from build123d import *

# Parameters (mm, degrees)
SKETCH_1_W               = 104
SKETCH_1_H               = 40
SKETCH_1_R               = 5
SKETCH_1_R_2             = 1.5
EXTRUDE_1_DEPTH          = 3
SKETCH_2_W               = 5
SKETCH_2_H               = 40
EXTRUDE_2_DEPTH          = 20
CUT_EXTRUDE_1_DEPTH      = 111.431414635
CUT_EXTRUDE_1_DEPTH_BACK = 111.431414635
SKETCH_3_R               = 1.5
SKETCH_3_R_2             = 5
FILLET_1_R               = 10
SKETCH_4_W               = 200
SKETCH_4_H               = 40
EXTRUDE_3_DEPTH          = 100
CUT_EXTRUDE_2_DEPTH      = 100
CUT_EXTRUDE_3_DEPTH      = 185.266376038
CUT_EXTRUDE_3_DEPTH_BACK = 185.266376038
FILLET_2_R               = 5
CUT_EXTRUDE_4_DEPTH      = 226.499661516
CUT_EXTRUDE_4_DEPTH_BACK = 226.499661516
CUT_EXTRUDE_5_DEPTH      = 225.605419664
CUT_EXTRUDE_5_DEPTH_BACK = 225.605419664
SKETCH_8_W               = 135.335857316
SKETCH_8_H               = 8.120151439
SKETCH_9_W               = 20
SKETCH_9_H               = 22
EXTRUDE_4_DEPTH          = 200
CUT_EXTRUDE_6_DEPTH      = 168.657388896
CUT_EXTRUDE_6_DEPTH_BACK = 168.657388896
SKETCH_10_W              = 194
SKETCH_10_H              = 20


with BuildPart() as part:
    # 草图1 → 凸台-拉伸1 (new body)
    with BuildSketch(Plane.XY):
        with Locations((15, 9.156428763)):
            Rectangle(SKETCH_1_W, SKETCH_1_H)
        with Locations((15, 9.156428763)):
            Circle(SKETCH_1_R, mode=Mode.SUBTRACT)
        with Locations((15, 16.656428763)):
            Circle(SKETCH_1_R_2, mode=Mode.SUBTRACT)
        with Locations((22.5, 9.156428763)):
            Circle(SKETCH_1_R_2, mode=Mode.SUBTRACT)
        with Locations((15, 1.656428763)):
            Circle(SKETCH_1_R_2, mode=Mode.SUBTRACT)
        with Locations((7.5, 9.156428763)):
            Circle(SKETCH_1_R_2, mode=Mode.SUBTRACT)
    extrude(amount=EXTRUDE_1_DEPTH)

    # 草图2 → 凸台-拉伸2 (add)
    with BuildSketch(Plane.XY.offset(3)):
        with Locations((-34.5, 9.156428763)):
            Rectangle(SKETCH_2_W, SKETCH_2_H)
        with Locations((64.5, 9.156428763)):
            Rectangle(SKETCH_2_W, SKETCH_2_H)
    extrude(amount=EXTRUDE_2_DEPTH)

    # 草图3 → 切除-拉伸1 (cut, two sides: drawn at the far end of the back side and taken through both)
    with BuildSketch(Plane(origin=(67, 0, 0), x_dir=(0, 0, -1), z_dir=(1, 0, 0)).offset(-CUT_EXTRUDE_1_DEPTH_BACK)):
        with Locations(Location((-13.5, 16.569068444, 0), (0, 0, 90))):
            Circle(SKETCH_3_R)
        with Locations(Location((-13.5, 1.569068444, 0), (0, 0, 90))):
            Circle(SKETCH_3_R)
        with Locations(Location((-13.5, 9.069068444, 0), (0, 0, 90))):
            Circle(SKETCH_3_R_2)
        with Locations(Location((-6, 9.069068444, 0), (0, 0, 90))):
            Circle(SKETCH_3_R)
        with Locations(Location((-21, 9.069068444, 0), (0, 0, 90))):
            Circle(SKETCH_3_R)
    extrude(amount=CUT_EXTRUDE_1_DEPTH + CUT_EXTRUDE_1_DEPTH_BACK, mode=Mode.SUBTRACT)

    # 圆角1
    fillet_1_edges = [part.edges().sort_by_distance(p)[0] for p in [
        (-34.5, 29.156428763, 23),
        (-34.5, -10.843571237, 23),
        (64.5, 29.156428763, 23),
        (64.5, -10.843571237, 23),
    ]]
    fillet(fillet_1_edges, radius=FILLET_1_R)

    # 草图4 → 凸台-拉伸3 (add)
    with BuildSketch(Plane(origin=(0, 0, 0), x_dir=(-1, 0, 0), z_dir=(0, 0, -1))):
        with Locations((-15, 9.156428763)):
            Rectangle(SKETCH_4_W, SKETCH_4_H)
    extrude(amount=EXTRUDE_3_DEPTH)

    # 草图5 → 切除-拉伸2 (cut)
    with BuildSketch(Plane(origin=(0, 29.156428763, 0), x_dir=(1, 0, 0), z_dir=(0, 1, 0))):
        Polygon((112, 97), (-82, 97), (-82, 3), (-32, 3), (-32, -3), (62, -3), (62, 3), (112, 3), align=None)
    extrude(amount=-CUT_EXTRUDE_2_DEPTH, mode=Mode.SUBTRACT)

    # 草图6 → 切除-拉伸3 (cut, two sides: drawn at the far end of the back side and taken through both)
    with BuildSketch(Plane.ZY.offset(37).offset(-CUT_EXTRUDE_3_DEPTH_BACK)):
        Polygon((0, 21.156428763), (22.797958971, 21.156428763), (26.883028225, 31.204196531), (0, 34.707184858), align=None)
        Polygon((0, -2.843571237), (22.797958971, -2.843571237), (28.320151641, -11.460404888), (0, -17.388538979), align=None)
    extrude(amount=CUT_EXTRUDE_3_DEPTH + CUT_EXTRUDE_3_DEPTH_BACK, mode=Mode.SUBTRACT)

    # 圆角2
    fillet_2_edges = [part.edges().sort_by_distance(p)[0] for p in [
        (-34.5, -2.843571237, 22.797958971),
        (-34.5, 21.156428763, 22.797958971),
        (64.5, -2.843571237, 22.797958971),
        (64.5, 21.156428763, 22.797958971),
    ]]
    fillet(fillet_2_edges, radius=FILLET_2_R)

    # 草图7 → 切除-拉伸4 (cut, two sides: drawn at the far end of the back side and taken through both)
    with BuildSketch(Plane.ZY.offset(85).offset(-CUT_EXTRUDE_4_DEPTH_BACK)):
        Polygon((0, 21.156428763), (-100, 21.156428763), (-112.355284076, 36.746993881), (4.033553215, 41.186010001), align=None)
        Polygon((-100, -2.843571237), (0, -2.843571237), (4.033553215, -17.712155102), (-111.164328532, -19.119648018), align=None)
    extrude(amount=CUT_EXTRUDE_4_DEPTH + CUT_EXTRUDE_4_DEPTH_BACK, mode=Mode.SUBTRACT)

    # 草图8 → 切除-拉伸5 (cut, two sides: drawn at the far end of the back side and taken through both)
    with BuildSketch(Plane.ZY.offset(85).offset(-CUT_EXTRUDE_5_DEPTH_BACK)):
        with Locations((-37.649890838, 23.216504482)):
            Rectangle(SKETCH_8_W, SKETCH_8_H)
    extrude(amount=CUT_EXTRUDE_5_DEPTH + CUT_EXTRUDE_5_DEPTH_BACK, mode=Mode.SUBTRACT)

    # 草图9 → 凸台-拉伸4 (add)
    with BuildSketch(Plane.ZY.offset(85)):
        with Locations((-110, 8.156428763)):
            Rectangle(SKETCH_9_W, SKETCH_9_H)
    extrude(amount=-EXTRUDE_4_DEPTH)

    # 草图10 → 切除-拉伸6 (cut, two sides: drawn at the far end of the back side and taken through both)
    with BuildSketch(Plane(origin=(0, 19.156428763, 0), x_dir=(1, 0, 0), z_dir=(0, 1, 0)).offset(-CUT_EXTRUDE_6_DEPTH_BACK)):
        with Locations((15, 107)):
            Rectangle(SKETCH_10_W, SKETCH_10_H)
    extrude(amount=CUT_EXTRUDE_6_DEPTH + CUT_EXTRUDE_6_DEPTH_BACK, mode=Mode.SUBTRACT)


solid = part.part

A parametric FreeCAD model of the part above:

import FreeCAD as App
import Part
import Sketcher
Q = App.Units.Quantity


def edges_at(feature, points):
    """Names of the edges that pass closest to the given points."""
    edges = feature.Shape.Edges
    near = lambda p: min(range(len(edges)), key=lambda i: edges[i].distToShape(Part.Vertex(*p))[0])
    return sorted({f"Edge{near(p) + 1}" for p in points})


def add_polygon(sketch, points):
    """Adds a closed chain of lines whose ends are joined by coincident constraints."""
    first, n = sketch.GeometryCount, len(points)
    for a, b in zip(points, points[1:] + points[:1]):
        sketch.addGeometry(Part.LineSegment(App.Vector(*a, 0), App.Vector(*b, 0)), False)
    for i in range(n):
        sketch.addConstraint(Sketcher.Constraint("Coincident", first + i, 2, first + (i + 1) % n, 1))

doc = App.newDocument("Part")
body = doc.addObject("PartDesign::Body", "Body")

# Sketch on XY plane
sketch1 = body.newObject("Sketcher::SketchObject", "Sketch")
sketch1.AttachmentSupport = (doc.getObject("XY_Plane"), [""])
sketch1.MapMode = "FlatFace"
add_polygon(sketch1, [(-37, 29.156429), (-37, -10.843571), (67, -10.843571), (67, 29.156429)])  # lines 0-3
sketch1.addGeometry(Part.Circle(App.Vector(15, 1.656429, 0), App.Vector(0, 0, 1), 1.5), False)  # 4
sketch1.addGeometry(Part.Circle(App.Vector(7.5, 9.156429, 0), App.Vector(0, 0, 1), 1.5), False)  # 5
sketch1.addGeometry(Part.Circle(App.Vector(15, 9.156429, 0), App.Vector(0, 0, 1), 5), False)  # 6
sketch1.addGeometry(Part.Circle(App.Vector(22.5, 9.156429, 0), App.Vector(0, 0, 1), 1.5), False)  # 7
sketch1.addGeometry(Part.Circle(App.Vector(15, 16.656429, 0), App.Vector(0, 0, 1), 1.5), False)  # 8
sketch1.addConstraint(Sketcher.Constraint("Vertical", 0))
sketch1.addConstraint(Sketcher.Constraint("Horizontal", 1))
sketch1.addConstraint(Sketcher.Constraint("Vertical", 2))
sketch1.addConstraint(Sketcher.Constraint("Horizontal", 3))
sketch1.addConstraint(Sketcher.Constraint("Equal", 4, 5))
sketch1.addConstraint(Sketcher.Constraint("Equal", 5, 7))
sketch1.addConstraint(Sketcher.Constraint("Equal", 7, 8))
sketch1.addConstraint(Sketcher.Constraint("Horizontal", 5, 3, 6, 3))
sketch1.addConstraint(Sketcher.Constraint("Horizontal", 6, 3, 7, 3))
sketch1.addConstraint(Sketcher.Constraint("Vertical", 4, 3, 6, 3))
sketch1.addConstraint(Sketcher.Constraint("Vertical", 6, 3, 8, 3))
sketch1.addConstraint(Sketcher.Constraint("Diameter", 4, Q("3 mm")))
sketch1.addConstraint(Sketcher.Constraint("Diameter", 6, Q("10 mm")))
sketch1.addConstraint(Sketcher.Constraint("DistanceX", 1, 1, 1, 2, Q("104 mm")))
sketch1.addConstraint(Sketcher.Constraint("DistanceY", 0, 2, 0, 1, Q("40 mm")))
sketch1.addConstraint(Sketcher.Constraint("DistanceX", -1, 1, 4, 3, Q("15 mm")))
sketch1.addConstraint(Sketcher.Constraint("DistanceX", 0, 2, -1, 1, Q("37 mm")))
sketch1.addConstraint(Sketcher.Constraint("DistanceX", 5, 3, 7, 3, Q("15 mm")))
sketch1.addConstraint(Sketcher.Constraint("DistanceY", 4, 3, 8, 3, Q("15 mm")))
sketch1.addConstraint(Sketcher.Constraint("DistanceY", 0, 2, 5, 3, Q("20 mm")))
sketch1.addConstraint(Sketcher.Constraint("DistanceX", -1, 1, 5, 3, Q("7.5 mm")))
sketch1.addConstraint(Sketcher.Constraint("DistanceY", 4, 3, 5, 3, Q("7.5 mm")))
sketch1.addConstraint(Sketcher.Constraint("DistanceY", -1, 1, 4, 3, Q("1.656429 mm")))
pad1 = body.newObject("PartDesign::Pad", "Pad")
pad1.Profile = sketch1
pad1.Length = 3

# Sketch on XY plane
sketch2 = body.newObject("Sketcher::SketchObject", "Sketch001")
sketch2.AttachmentSupport = (doc.getObject("XY_Plane"), [""])
sketch2.MapMode = "FlatFace"
sketch2.AttachmentOffset = App.Placement(App.Vector(0, 0, 3), App.Rotation())
add_polygon(sketch2, [(-37, 29.156429), (-37, -10.843571), (-32, -10.843571), (-32, 29.156429)])  # lines 0-3
add_polygon(sketch2, [(62, 29.156429), (62, -10.843571), (67, -10.843571), (67, 29.156429)])  # lines 4-7
sketch2.addConstraint(Sketcher.Constraint("Vertical", 0))
sketch2.addConstraint(Sketcher.Constraint("Horizontal", 1))
sketch2.addConstraint(Sketcher.Constraint("Vertical", 2))
sketch2.addConstraint(Sketcher.Constraint("Horizontal", 3))
sketch2.addConstraint(Sketcher.Constraint("Vertical", 4))
sketch2.addConstraint(Sketcher.Constraint("Horizontal", 5))
sketch2.addConstraint(Sketcher.Constraint("Vertical", 6))
sketch2.addConstraint(Sketcher.Constraint("Horizontal", 7))
sketch2.addConstraint(Sketcher.Constraint("Horizontal", 1, 2, 4, 2))
sketch2.addConstraint(Sketcher.Constraint("Horizontal", 3, 2, 6, 2))
sketch2.addConstraint(Sketcher.Constraint("Equal", 3, 5))
sketch2.addConstraint(Sketcher.Constraint("DistanceX", 1, 1, 1, 2, Q("5 mm")))
sketch2.addConstraint(Sketcher.Constraint("DistanceY", 0, 2, 0, 1, Q("40 mm")))
sketch2.addConstraint(Sketcher.Constraint("DistanceX", 0, 2, -1, 1, Q("37 mm")))
sketch2.addConstraint(Sketcher.Constraint("DistanceX", -1, 1, 4, 2, Q("62 mm")))
sketch2.addConstraint(Sketcher.Constraint("DistanceY", 0, 2, -1, 1, Q("10.843571 mm")))
pad2 = body.newObject("PartDesign::Pad", "Pad001")
pad2.Profile = sketch2
pad2.Length = 20

# Sketch on YZ plane
sketch3 = body.newObject("Sketcher::SketchObject", "Sketch002")
sketch3.AttachmentSupport = (doc.getObject("YZ_Plane"), [""])
sketch3.MapMode = "FlatFace"
sketch3.AttachmentOffset = App.Placement(App.Vector(0, 0, 67), App.Rotation())
sketch3.addGeometry(Part.Circle(App.Vector(16.569068, 13.5, 0), App.Vector(0, 0, 1), 1.5), False)
sketch3.addGeometry(Part.Circle(App.Vector(1.569068, 13.5, 0), App.Vector(0, 0, 1), 1.5), False)
sketch3.addGeometry(Part.Circle(App.Vector(9.069068, 13.5, 0), App.Vector(0, 0, 1), 5), False)
sketch3.addGeometry(Part.Circle(App.Vector(9.069068, 6, 0), App.Vector(0, 0, 1), 1.5), False)
sketch3.addGeometry(Part.Circle(App.Vector(9.069068, 21, 0), App.Vector(0, 0, 1), 1.5), False)
sketch3.addConstraint(Sketcher.Constraint("Equal", 0, 1))
sketch3.addConstraint(Sketcher.Constraint("Equal", 1, 3))
sketch3.addConstraint(Sketcher.Constraint("Equal", 3, 4))
sketch3.addConstraint(Sketcher.Constraint("Horizontal", 0, 3, 1, 3))
sketch3.addConstraint(Sketcher.Constraint("Horizontal", 1, 3, 2, 3))
sketch3.addConstraint(Sketcher.Constraint("Vertical", 2, 3, 3, 3))
sketch3.addConstraint(Sketcher.Constraint("Vertical", 3, 3, 4, 3))
sketch3.addConstraint(Sketcher.Constraint("Diameter", 0, Q("3 mm")))
sketch3.addConstraint(Sketcher.Constraint("Diameter", 2, Q("10 mm")))
sketch3.addConstraint(Sketcher.Constraint("DistanceY", -1, 1, 3, 3, Q("6 mm")))
sketch3.addConstraint(Sketcher.Constraint("DistanceY", -1, 1, 4, 3, Q("21 mm")))
sketch3.addConstraint(Sketcher.Constraint("DistanceX", 1, 3, 0, 3, Q("15 mm")))
sketch3.addConstraint(Sketcher.Constraint("DistanceY", -1, 1, 0, 3, Q("13.5 mm")))
sketch3.addConstraint(Sketcher.Constraint("DistanceX", 1, 3, 2, 3, Q("7.5 mm")))
sketch3.addConstraint(Sketcher.Constraint("DistanceX", -1, 1, 0, 3, Q("16.569068 mm")))
pocket1 = body.newObject("PartDesign::Pocket", "Pocket")
pocket1.Profile = sketch3
pocket1.Type = "ThroughAll"
pocket1.Midplane = True
doc.recompute()

fillet = body.newObject("PartDesign::Fillet", "Fillet")
fillet.Base = (pocket1, edges_at(pocket1, [
    (-34.5, 29.156, 23),
    (-34.5, -10.844, 23),
    (64.5, 29.156, 23),
    (64.5, -10.844, 23),
]))
fillet.Radius = 10

# Sketch on XY plane
sketch4 = body.newObject("Sketcher::SketchObject", "Sketch003")
sketch4.AttachmentSupport = (doc.getObject("XY_Plane"), [""])
sketch4.MapMode = "FlatFace"
add_polygon(sketch4, [(115, 29.156429), (115, -10.843571), (-85, -10.843571), (-85, 29.156429)])  # lines 0-3
sketch4.addConstraint(Sketcher.Constraint("Vertical", 0))
sketch4.addConstraint(Sketcher.Constraint("Horizontal", 1))
sketch4.addConstraint(Sketcher.Constraint("Vertical", 2))
sketch4.addConstraint(Sketcher.Constraint("Horizontal", 3))
sketch4.addConstraint(Sketcher.Constraint("DistanceX", 1, 2, 1, 1, Q("200 mm")))
sketch4.addConstraint(Sketcher.Constraint("DistanceY", 0, 2, 0, 1, Q("40 mm")))
sketch4.addConstraint(Sketcher.Constraint("DistanceX", -1, 1, 0, 2, Q("115 mm")))
sketch4.addConstraint(Sketcher.Constraint("DistanceY", 0, 2, -1, 1, Q("10.843571 mm")))
pad3 = body.newObject("PartDesign::Pad", "Pad002")
pad3.Profile = sketch4
pad3.Length = 100
pad3.Reversed = True

# Sketch on XZ plane
sketch5 = body.newObject("Sketcher::SketchObject", "Sketch004")
sketch5.AttachmentSupport = (doc.getObject("XZ_Plane"), [""])
sketch5.MapMode = "FlatFace"
sketch5.AttachmentOffset = App.Placement(App.Vector(0, 0, -29.156429), App.Rotation())
add_polygon(sketch5, [(112, -97), (-82, -97), (-82, -3), (-32, -3), (-32, 3), (62, 3), (62, -3), (112, -3)])  # lines 0-7
sketch5.addConstraint(Sketcher.Constraint("Horizontal", 0))
sketch5.addConstraint(Sketcher.Constraint("Vertical", 1))
sketch5.addConstraint(Sketcher.Constraint("Horizontal", 2))
sketch5.addConstraint(Sketcher.Constraint("Vertical", 3))
sketch5.addConstraint(Sketcher.Constraint("Horizontal", 4))
sketch5.addConstraint(Sketcher.Constraint("Vertical", 5))
sketch5.addConstraint(Sketcher.Constraint("Horizontal", 6))
sketch5.addConstraint(Sketcher.Constraint("Vertical", 7))
sketch5.addConstraint(Sketcher.Constraint("Horizontal", 2, 2, 5, 2))
sketch5.addConstraint(Sketcher.Constraint("Equal", 2, 6))
sketch5.addConstraint(Sketcher.Constraint("Equal", 4, 1))
sketch5.addConstraint(Sketcher.Constraint("DistanceX", 0, 2, 0, 1, Q("194 mm")))
sketch5.addConstraint(Sketcher.Constraint("DistanceX", 2, 1, 2, 2, Q("50 mm")))
sketch5.addConstraint(Sketcher.Constraint("DistanceY", 3, 1, 3, 2, Q("6 mm")))
sketch5.addConstraint(Sketcher.Constraint("DistanceX", 0, 2, -1, 1, Q("82 mm")))
sketch5.addConstraint(Sketcher.Constraint("DistanceY", 0, 2, -1, 1, Q("97 mm")))
pocket2 = body.newObject("PartDesign::Pocket", "Pocket001")
pocket2.Profile = sketch5
pocket2.Length = 100
pocket2.Reversed = True

# Sketch on YZ plane
sketch6 = body.newObject("Sketcher::SketchObject", "Sketch005")
sketch6.AttachmentSupport = (doc.getObject("YZ_Plane"), [""])
sketch6.MapMode = "FlatFace"
sketch6.AttachmentOffset = App.Placement(App.Vector(0, 0, -37), App.Rotation())
add_polygon(sketch6, [(21.156429, 0), (21.156429, 22.797959), (31.204197, 26.883028), (34.707185, 0)])  # lines 0-3
add_polygon(sketch6, [(-2.843571, 22.797959), (-2.843571, 0), (-17.388539, 0), (-11.460405, 28.320152)])  # lines 4-7
sketch6.addConstraint(Sketcher.Constraint("Vertical", 0))
sketch6.addConstraint(Sketcher.Constraint("Horizontal", 3))
sketch6.addConstraint(Sketcher.Constraint("Vertical", 4))
sketch6.addConstraint(Sketcher.Constraint("Horizontal", 5))
sketch6.addConstraint(Sketcher.Constraint("PointOnObject", 2, 2, -1))
sketch6.addConstraint(Sketcher.Constraint("PointOnObject", 4, 2, -1))
sketch6.addConstraint(Sketcher.Constraint("Horizontal", 0, 2, 7, 2))
sketch6.addConstraint(Sketcher.Constraint("DistanceX", 4, 2, 3, 2, Q("24 mm")))
sketch6.addConstraint(Sketcher.Constraint("DistanceY", 0, 1, 0, 2, Q("22.797959 mm")))
sketch6.addConstraint(Sketcher.Constraint("DistanceX", 6, 2, 1, 2, Q("42.664601 mm")))
sketch6.addConstraint(Sketcher.Constraint("DistanceX", 3, 2, 3, 1, Q("13.550756 mm")))
sketch6.addConstraint(Sketcher.Constraint("DistanceX", 5, 2, 5, 1, Q("14.544968 mm")))
sketch6.addConstraint(Sketcher.Constraint("DistanceX", -1, 1, 0, 2, Q("21.156429 mm")))
sketch6.addConstraint(Sketcher.Constraint("DistanceY", -1, 1, 1, 2, Q("26.883028 mm")))
sketch6.addConstraint(Sketcher.Constraint("DistanceY", -1, 1, 6, 2, Q("28.320152 mm")))
sketch6.addConstraint(Sketcher.Constraint("DistanceX", 1, 2, 2, 2, Q("3.502988 mm")))
pocket3 = body.newObject("PartDesign::Pocket", "Pocket002")
pocket3.Profile = sketch6
pocket3.Type = "ThroughAll"
pocket3.Midplane = True
doc.recompute()

fillet2 = body.newObject("PartDesign::Fillet", "Fillet001")
fillet2.Base = (pocket3, edges_at(pocket3, [
    (-34.5, -2.844, 22.798),
    (-34.5, 21.156, 22.798),
    (64.5, -2.844, 22.798),
    (64.5, 21.156, 22.798),
]))
fillet2.Radius = 5

# Sketch on YZ plane
sketch7 = body.newObject("Sketcher::SketchObject", "Sketch006")
sketch7.AttachmentSupport = (doc.getObject("YZ_Plane"), [""])
sketch7.MapMode = "FlatFace"
sketch7.AttachmentOffset = App.Placement(App.Vector(0, 0, -85), App.Rotation())
add_polygon(sketch7, [(21.156429, -100), (21.156429, 0), (41.18601, 4.033553), (36.746994, -112.355284)])  # lines 0-3
add_polygon(sketch7, [(-2.843571, 0), (-2.843571, -100), (-19.119648, -111.164329), (-17.712155, 4.033553)])  # lines 4-7
sketch7.addConstraint(Sketcher.Constraint("Vertical", 0))
sketch7.addConstraint(Sketcher.Constraint("Vertical", 4))
sketch7.addConstraint(Sketcher.Constraint("PointOnObject", 0, 2, -1))
sketch7.addConstraint(Sketcher.Constraint("PointOnObject", 7, 2, -1))
sketch7.addConstraint(Sketcher.Constraint("Horizontal", 3, 2, 4, 2))
sketch7.addConstraint(Sketcher.Constraint("Horizontal", 1, 2, 6, 2))
sketch7.addConstraint(Sketcher.Constraint("DistanceY", 0, 1, 0, 2, Q("100 mm")))
sketch7.addConstraint(Sketcher.Constraint("Angle", 6, Q("89.299992 deg")))
sketch7.addConstraint(Sketcher.Constraint("DistanceX", 4, 2, 3, 2, Q("24 mm")))
sketch7.addConstraint(Sketcher.Constraint("Distance", 3, Q("19.892681 mm")))
sketch7.addConstraint(Sketcher.Constraint("Distance", 6, Q("115.20648 mm")))
sketch7.addConstraint(Sketcher.Constraint("DistanceX", -1, 1, 0, 2, Q("21.156429 mm")))
sketch7.addConstraint(Sketcher.Constraint("DistanceX", -1, 1, 1, 2, Q("41.18601 mm")))
sketch7.addConstraint(Sketcher.Constraint("DistanceX", 5, 2, -1, 1, Q("19.119648 mm")))
sketch7.addConstraint(Sketcher.Constraint("DistanceY", 5, 2, -1, 1, Q("111.164329 mm")))
sketch7.addConstraint(Sketcher.Constraint("DistanceX", 5, 2, 2, 2, Q("55.866642 mm")))
pocket4 = body.newObject("PartDesign::Pocket", "Pocket003")
pocket4.Profile = sketch7
pocket4.Type = "ThroughAll"
pocket4.Midplane = True

# Sketch on YZ plane
sketch8 = body.newObject("Sketcher::SketchObject", "Sketch007")
sketch8.AttachmentSupport = (doc.getObject("YZ_Plane"), [""])
sketch8.MapMode = "FlatFace"
sketch8.AttachmentOffset = App.Placement(App.Vector(0, 0, -85), App.Rotation())
add_polygon(sketch8, [(27.27658, -105.317819), (19.156429, -105.317819), (19.156429, 30.018038), (27.27658, 30.018038)])  # lines 0-3
sketch8.addConstraint(Sketcher.Constraint("Horizontal", 0))
sketch8.addConstraint(Sketcher.Constraint("Vertical", 1))
sketch8.addConstraint(Sketcher.Constraint("Horizontal", 2))
sketch8.addConstraint(Sketcher.Constraint("Vertical", 3))
sketch8.addConstraint(Sketcher.Constraint("DistanceX", 0, 2, 0, 1, Q("8.120151 mm")))
sketch8.addConstraint(Sketcher.Constraint("DistanceY", 1, 1, 1, 2, Q("135.335857 mm")))
sketch8.addConstraint(Sketcher.Constraint("DistanceX", -1, 1, 0, 2, Q("19.156429 mm")))
sketch8.addConstraint(Sketcher.Constraint("DistanceY", 0, 2, -1, 1, Q("105.317819 mm")))
pocket5 = body.newObject("PartDesign::Pocket", "Pocket004")
pocket5.Profile = sketch8
pocket5.Type = "ThroughAll"
pocket5.Midplane = True

# Sketch on YZ plane
sketch9 = body.newObject("Sketcher::SketchObject", "Sketch008")
sketch9.AttachmentSupport = (doc.getObject("YZ_Plane"), [""])
sketch9.MapMode = "FlatFace"
sketch9.AttachmentOffset = App.Placement(App.Vector(0, 0, -85), App.Rotation())
add_polygon(sketch9, [(19.156429, -120), (-2.843571, -120), (-2.843571, -100), (19.156429, -100)])  # lines 0-3
sketch9.addConstraint(Sketcher.Constraint("Horizontal", 0))
sketch9.addConstraint(Sketcher.Constraint("Vertical", 1))
sketch9.addConstraint(Sketcher.Constraint("Horizontal", 2))
sketch9.addConstraint(Sketcher.Constraint("Vertical", 3))
sketch9.addConstraint(Sketcher.Constraint("DistanceX", 0, 2, 0, 1, Q("22 mm")))
sketch9.addConstraint(Sketcher.Constraint("DistanceY", 1, 1, 1, 2, Q("20 mm")))
sketch9.addConstraint(Sketcher.Constraint("DistanceY", 0, 2, -1, 1, Q("120 mm")))
sketch9.addConstraint(Sketcher.Constraint("DistanceX", 0, 2, -1, 1, Q("2.843571 mm")))
pad4 = body.newObject("PartDesign::Pad", "Pad003")
pad4.Profile = sketch9
pad4.Length = 200

# Sketch on XZ plane
sketch10 = body.newObject("Sketcher::SketchObject", "Sketch009")
sketch10.AttachmentSupport = (doc.getObject("XZ_Plane"), [""])
sketch10.MapMode = "FlatFace"
sketch10.AttachmentOffset = App.Placement(App.Vector(0, 0, -19.156429), App.Rotation())
add_polygon(sketch10, [(-82, -117), (-82, -97), (112, -97), (112, -117)])  # lines 0-3
sketch10.addConstraint(Sketcher.Constraint("Vertical", 0))
sketch10.addConstraint(Sketcher.Constraint("Horizontal", 1))
sketch10.addConstraint(Sketcher.Constraint("Vertical", 2))
sketch10.addConstraint(Sketcher.Constraint("Horizontal", 3))
sketch10.addConstraint(Sketcher.Constraint("DistanceX", 1, 1, 1, 2, Q("194 mm")))
sketch10.addConstraint(Sketcher.Constraint("DistanceY", 0, 1, 0, 2, Q("20 mm")))
sketch10.addConstraint(Sketcher.Constraint("DistanceX", 0, 2, -1, 1, Q("82 mm")))
sketch10.addConstraint(Sketcher.Constraint("DistanceY", 0, 2, -1, 1, Q("97 mm")))
pocket6 = body.newObject("PartDesign::Pocket", "Pocket005")
pocket6.Profile = sketch10
pocket6.Type = "ThroughAll"
pocket6.Midplane = True

doc.recompute()
